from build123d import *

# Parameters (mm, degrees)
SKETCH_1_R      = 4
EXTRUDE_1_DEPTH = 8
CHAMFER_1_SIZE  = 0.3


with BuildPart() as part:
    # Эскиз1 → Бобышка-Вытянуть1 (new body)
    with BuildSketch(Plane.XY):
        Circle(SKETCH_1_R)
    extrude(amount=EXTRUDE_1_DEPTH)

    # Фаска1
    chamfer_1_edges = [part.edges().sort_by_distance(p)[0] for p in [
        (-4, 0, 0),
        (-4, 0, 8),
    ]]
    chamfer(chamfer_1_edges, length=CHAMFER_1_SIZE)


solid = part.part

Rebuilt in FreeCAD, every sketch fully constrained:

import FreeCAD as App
import Part
import Sketcher

V = App.Vector


def edges_at(feature, points):
    """Names of the edges that pass closest to the given points."""
    edges = feature.Shape.Edges
    near = lambda p: min(range(len(edges)), key=lambda i: edges[i].distToShape(Part.Vertex(*p))[0])
    return sorted({f"Edge{near(p) + 1}" for p in points})

doc = App.newDocument("Part")
body = doc.addObject("PartDesign::Body", "Body")

# Sketch on XY plane
sketch1 = body.newObject("Sketcher::SketchObject", "Sketch")
sketch1.AttachmentSupport = (doc.getObject("XY_Plane"), [""])
sketch1.MapMode = "FlatFace"
sketch1.addGeometry(Part.Circle(V(0, 0, 0), V(0, 0, 1), 4), False)
sketch1.addConstraint(Sketcher.Constraint("Coincident", 0, 3, -1, 1))
sketch1.addConstraint(Sketcher.Constraint("Diameter", 0, 8.0))
pad1 = body.newObject("PartDesign::Pad", "Pad")
pad1.Profile = sketch1
pad1.Length = 8
doc.recompute()

chamfer = body.newObject("PartDesign::Chamfer", "Chamfer")
chamfer.Base = (pad1, edges_at(pad1, [(-4, 0, 0), (-4, 0, 8)]))
chamfer.Size = 0.3

doc.recompute()
